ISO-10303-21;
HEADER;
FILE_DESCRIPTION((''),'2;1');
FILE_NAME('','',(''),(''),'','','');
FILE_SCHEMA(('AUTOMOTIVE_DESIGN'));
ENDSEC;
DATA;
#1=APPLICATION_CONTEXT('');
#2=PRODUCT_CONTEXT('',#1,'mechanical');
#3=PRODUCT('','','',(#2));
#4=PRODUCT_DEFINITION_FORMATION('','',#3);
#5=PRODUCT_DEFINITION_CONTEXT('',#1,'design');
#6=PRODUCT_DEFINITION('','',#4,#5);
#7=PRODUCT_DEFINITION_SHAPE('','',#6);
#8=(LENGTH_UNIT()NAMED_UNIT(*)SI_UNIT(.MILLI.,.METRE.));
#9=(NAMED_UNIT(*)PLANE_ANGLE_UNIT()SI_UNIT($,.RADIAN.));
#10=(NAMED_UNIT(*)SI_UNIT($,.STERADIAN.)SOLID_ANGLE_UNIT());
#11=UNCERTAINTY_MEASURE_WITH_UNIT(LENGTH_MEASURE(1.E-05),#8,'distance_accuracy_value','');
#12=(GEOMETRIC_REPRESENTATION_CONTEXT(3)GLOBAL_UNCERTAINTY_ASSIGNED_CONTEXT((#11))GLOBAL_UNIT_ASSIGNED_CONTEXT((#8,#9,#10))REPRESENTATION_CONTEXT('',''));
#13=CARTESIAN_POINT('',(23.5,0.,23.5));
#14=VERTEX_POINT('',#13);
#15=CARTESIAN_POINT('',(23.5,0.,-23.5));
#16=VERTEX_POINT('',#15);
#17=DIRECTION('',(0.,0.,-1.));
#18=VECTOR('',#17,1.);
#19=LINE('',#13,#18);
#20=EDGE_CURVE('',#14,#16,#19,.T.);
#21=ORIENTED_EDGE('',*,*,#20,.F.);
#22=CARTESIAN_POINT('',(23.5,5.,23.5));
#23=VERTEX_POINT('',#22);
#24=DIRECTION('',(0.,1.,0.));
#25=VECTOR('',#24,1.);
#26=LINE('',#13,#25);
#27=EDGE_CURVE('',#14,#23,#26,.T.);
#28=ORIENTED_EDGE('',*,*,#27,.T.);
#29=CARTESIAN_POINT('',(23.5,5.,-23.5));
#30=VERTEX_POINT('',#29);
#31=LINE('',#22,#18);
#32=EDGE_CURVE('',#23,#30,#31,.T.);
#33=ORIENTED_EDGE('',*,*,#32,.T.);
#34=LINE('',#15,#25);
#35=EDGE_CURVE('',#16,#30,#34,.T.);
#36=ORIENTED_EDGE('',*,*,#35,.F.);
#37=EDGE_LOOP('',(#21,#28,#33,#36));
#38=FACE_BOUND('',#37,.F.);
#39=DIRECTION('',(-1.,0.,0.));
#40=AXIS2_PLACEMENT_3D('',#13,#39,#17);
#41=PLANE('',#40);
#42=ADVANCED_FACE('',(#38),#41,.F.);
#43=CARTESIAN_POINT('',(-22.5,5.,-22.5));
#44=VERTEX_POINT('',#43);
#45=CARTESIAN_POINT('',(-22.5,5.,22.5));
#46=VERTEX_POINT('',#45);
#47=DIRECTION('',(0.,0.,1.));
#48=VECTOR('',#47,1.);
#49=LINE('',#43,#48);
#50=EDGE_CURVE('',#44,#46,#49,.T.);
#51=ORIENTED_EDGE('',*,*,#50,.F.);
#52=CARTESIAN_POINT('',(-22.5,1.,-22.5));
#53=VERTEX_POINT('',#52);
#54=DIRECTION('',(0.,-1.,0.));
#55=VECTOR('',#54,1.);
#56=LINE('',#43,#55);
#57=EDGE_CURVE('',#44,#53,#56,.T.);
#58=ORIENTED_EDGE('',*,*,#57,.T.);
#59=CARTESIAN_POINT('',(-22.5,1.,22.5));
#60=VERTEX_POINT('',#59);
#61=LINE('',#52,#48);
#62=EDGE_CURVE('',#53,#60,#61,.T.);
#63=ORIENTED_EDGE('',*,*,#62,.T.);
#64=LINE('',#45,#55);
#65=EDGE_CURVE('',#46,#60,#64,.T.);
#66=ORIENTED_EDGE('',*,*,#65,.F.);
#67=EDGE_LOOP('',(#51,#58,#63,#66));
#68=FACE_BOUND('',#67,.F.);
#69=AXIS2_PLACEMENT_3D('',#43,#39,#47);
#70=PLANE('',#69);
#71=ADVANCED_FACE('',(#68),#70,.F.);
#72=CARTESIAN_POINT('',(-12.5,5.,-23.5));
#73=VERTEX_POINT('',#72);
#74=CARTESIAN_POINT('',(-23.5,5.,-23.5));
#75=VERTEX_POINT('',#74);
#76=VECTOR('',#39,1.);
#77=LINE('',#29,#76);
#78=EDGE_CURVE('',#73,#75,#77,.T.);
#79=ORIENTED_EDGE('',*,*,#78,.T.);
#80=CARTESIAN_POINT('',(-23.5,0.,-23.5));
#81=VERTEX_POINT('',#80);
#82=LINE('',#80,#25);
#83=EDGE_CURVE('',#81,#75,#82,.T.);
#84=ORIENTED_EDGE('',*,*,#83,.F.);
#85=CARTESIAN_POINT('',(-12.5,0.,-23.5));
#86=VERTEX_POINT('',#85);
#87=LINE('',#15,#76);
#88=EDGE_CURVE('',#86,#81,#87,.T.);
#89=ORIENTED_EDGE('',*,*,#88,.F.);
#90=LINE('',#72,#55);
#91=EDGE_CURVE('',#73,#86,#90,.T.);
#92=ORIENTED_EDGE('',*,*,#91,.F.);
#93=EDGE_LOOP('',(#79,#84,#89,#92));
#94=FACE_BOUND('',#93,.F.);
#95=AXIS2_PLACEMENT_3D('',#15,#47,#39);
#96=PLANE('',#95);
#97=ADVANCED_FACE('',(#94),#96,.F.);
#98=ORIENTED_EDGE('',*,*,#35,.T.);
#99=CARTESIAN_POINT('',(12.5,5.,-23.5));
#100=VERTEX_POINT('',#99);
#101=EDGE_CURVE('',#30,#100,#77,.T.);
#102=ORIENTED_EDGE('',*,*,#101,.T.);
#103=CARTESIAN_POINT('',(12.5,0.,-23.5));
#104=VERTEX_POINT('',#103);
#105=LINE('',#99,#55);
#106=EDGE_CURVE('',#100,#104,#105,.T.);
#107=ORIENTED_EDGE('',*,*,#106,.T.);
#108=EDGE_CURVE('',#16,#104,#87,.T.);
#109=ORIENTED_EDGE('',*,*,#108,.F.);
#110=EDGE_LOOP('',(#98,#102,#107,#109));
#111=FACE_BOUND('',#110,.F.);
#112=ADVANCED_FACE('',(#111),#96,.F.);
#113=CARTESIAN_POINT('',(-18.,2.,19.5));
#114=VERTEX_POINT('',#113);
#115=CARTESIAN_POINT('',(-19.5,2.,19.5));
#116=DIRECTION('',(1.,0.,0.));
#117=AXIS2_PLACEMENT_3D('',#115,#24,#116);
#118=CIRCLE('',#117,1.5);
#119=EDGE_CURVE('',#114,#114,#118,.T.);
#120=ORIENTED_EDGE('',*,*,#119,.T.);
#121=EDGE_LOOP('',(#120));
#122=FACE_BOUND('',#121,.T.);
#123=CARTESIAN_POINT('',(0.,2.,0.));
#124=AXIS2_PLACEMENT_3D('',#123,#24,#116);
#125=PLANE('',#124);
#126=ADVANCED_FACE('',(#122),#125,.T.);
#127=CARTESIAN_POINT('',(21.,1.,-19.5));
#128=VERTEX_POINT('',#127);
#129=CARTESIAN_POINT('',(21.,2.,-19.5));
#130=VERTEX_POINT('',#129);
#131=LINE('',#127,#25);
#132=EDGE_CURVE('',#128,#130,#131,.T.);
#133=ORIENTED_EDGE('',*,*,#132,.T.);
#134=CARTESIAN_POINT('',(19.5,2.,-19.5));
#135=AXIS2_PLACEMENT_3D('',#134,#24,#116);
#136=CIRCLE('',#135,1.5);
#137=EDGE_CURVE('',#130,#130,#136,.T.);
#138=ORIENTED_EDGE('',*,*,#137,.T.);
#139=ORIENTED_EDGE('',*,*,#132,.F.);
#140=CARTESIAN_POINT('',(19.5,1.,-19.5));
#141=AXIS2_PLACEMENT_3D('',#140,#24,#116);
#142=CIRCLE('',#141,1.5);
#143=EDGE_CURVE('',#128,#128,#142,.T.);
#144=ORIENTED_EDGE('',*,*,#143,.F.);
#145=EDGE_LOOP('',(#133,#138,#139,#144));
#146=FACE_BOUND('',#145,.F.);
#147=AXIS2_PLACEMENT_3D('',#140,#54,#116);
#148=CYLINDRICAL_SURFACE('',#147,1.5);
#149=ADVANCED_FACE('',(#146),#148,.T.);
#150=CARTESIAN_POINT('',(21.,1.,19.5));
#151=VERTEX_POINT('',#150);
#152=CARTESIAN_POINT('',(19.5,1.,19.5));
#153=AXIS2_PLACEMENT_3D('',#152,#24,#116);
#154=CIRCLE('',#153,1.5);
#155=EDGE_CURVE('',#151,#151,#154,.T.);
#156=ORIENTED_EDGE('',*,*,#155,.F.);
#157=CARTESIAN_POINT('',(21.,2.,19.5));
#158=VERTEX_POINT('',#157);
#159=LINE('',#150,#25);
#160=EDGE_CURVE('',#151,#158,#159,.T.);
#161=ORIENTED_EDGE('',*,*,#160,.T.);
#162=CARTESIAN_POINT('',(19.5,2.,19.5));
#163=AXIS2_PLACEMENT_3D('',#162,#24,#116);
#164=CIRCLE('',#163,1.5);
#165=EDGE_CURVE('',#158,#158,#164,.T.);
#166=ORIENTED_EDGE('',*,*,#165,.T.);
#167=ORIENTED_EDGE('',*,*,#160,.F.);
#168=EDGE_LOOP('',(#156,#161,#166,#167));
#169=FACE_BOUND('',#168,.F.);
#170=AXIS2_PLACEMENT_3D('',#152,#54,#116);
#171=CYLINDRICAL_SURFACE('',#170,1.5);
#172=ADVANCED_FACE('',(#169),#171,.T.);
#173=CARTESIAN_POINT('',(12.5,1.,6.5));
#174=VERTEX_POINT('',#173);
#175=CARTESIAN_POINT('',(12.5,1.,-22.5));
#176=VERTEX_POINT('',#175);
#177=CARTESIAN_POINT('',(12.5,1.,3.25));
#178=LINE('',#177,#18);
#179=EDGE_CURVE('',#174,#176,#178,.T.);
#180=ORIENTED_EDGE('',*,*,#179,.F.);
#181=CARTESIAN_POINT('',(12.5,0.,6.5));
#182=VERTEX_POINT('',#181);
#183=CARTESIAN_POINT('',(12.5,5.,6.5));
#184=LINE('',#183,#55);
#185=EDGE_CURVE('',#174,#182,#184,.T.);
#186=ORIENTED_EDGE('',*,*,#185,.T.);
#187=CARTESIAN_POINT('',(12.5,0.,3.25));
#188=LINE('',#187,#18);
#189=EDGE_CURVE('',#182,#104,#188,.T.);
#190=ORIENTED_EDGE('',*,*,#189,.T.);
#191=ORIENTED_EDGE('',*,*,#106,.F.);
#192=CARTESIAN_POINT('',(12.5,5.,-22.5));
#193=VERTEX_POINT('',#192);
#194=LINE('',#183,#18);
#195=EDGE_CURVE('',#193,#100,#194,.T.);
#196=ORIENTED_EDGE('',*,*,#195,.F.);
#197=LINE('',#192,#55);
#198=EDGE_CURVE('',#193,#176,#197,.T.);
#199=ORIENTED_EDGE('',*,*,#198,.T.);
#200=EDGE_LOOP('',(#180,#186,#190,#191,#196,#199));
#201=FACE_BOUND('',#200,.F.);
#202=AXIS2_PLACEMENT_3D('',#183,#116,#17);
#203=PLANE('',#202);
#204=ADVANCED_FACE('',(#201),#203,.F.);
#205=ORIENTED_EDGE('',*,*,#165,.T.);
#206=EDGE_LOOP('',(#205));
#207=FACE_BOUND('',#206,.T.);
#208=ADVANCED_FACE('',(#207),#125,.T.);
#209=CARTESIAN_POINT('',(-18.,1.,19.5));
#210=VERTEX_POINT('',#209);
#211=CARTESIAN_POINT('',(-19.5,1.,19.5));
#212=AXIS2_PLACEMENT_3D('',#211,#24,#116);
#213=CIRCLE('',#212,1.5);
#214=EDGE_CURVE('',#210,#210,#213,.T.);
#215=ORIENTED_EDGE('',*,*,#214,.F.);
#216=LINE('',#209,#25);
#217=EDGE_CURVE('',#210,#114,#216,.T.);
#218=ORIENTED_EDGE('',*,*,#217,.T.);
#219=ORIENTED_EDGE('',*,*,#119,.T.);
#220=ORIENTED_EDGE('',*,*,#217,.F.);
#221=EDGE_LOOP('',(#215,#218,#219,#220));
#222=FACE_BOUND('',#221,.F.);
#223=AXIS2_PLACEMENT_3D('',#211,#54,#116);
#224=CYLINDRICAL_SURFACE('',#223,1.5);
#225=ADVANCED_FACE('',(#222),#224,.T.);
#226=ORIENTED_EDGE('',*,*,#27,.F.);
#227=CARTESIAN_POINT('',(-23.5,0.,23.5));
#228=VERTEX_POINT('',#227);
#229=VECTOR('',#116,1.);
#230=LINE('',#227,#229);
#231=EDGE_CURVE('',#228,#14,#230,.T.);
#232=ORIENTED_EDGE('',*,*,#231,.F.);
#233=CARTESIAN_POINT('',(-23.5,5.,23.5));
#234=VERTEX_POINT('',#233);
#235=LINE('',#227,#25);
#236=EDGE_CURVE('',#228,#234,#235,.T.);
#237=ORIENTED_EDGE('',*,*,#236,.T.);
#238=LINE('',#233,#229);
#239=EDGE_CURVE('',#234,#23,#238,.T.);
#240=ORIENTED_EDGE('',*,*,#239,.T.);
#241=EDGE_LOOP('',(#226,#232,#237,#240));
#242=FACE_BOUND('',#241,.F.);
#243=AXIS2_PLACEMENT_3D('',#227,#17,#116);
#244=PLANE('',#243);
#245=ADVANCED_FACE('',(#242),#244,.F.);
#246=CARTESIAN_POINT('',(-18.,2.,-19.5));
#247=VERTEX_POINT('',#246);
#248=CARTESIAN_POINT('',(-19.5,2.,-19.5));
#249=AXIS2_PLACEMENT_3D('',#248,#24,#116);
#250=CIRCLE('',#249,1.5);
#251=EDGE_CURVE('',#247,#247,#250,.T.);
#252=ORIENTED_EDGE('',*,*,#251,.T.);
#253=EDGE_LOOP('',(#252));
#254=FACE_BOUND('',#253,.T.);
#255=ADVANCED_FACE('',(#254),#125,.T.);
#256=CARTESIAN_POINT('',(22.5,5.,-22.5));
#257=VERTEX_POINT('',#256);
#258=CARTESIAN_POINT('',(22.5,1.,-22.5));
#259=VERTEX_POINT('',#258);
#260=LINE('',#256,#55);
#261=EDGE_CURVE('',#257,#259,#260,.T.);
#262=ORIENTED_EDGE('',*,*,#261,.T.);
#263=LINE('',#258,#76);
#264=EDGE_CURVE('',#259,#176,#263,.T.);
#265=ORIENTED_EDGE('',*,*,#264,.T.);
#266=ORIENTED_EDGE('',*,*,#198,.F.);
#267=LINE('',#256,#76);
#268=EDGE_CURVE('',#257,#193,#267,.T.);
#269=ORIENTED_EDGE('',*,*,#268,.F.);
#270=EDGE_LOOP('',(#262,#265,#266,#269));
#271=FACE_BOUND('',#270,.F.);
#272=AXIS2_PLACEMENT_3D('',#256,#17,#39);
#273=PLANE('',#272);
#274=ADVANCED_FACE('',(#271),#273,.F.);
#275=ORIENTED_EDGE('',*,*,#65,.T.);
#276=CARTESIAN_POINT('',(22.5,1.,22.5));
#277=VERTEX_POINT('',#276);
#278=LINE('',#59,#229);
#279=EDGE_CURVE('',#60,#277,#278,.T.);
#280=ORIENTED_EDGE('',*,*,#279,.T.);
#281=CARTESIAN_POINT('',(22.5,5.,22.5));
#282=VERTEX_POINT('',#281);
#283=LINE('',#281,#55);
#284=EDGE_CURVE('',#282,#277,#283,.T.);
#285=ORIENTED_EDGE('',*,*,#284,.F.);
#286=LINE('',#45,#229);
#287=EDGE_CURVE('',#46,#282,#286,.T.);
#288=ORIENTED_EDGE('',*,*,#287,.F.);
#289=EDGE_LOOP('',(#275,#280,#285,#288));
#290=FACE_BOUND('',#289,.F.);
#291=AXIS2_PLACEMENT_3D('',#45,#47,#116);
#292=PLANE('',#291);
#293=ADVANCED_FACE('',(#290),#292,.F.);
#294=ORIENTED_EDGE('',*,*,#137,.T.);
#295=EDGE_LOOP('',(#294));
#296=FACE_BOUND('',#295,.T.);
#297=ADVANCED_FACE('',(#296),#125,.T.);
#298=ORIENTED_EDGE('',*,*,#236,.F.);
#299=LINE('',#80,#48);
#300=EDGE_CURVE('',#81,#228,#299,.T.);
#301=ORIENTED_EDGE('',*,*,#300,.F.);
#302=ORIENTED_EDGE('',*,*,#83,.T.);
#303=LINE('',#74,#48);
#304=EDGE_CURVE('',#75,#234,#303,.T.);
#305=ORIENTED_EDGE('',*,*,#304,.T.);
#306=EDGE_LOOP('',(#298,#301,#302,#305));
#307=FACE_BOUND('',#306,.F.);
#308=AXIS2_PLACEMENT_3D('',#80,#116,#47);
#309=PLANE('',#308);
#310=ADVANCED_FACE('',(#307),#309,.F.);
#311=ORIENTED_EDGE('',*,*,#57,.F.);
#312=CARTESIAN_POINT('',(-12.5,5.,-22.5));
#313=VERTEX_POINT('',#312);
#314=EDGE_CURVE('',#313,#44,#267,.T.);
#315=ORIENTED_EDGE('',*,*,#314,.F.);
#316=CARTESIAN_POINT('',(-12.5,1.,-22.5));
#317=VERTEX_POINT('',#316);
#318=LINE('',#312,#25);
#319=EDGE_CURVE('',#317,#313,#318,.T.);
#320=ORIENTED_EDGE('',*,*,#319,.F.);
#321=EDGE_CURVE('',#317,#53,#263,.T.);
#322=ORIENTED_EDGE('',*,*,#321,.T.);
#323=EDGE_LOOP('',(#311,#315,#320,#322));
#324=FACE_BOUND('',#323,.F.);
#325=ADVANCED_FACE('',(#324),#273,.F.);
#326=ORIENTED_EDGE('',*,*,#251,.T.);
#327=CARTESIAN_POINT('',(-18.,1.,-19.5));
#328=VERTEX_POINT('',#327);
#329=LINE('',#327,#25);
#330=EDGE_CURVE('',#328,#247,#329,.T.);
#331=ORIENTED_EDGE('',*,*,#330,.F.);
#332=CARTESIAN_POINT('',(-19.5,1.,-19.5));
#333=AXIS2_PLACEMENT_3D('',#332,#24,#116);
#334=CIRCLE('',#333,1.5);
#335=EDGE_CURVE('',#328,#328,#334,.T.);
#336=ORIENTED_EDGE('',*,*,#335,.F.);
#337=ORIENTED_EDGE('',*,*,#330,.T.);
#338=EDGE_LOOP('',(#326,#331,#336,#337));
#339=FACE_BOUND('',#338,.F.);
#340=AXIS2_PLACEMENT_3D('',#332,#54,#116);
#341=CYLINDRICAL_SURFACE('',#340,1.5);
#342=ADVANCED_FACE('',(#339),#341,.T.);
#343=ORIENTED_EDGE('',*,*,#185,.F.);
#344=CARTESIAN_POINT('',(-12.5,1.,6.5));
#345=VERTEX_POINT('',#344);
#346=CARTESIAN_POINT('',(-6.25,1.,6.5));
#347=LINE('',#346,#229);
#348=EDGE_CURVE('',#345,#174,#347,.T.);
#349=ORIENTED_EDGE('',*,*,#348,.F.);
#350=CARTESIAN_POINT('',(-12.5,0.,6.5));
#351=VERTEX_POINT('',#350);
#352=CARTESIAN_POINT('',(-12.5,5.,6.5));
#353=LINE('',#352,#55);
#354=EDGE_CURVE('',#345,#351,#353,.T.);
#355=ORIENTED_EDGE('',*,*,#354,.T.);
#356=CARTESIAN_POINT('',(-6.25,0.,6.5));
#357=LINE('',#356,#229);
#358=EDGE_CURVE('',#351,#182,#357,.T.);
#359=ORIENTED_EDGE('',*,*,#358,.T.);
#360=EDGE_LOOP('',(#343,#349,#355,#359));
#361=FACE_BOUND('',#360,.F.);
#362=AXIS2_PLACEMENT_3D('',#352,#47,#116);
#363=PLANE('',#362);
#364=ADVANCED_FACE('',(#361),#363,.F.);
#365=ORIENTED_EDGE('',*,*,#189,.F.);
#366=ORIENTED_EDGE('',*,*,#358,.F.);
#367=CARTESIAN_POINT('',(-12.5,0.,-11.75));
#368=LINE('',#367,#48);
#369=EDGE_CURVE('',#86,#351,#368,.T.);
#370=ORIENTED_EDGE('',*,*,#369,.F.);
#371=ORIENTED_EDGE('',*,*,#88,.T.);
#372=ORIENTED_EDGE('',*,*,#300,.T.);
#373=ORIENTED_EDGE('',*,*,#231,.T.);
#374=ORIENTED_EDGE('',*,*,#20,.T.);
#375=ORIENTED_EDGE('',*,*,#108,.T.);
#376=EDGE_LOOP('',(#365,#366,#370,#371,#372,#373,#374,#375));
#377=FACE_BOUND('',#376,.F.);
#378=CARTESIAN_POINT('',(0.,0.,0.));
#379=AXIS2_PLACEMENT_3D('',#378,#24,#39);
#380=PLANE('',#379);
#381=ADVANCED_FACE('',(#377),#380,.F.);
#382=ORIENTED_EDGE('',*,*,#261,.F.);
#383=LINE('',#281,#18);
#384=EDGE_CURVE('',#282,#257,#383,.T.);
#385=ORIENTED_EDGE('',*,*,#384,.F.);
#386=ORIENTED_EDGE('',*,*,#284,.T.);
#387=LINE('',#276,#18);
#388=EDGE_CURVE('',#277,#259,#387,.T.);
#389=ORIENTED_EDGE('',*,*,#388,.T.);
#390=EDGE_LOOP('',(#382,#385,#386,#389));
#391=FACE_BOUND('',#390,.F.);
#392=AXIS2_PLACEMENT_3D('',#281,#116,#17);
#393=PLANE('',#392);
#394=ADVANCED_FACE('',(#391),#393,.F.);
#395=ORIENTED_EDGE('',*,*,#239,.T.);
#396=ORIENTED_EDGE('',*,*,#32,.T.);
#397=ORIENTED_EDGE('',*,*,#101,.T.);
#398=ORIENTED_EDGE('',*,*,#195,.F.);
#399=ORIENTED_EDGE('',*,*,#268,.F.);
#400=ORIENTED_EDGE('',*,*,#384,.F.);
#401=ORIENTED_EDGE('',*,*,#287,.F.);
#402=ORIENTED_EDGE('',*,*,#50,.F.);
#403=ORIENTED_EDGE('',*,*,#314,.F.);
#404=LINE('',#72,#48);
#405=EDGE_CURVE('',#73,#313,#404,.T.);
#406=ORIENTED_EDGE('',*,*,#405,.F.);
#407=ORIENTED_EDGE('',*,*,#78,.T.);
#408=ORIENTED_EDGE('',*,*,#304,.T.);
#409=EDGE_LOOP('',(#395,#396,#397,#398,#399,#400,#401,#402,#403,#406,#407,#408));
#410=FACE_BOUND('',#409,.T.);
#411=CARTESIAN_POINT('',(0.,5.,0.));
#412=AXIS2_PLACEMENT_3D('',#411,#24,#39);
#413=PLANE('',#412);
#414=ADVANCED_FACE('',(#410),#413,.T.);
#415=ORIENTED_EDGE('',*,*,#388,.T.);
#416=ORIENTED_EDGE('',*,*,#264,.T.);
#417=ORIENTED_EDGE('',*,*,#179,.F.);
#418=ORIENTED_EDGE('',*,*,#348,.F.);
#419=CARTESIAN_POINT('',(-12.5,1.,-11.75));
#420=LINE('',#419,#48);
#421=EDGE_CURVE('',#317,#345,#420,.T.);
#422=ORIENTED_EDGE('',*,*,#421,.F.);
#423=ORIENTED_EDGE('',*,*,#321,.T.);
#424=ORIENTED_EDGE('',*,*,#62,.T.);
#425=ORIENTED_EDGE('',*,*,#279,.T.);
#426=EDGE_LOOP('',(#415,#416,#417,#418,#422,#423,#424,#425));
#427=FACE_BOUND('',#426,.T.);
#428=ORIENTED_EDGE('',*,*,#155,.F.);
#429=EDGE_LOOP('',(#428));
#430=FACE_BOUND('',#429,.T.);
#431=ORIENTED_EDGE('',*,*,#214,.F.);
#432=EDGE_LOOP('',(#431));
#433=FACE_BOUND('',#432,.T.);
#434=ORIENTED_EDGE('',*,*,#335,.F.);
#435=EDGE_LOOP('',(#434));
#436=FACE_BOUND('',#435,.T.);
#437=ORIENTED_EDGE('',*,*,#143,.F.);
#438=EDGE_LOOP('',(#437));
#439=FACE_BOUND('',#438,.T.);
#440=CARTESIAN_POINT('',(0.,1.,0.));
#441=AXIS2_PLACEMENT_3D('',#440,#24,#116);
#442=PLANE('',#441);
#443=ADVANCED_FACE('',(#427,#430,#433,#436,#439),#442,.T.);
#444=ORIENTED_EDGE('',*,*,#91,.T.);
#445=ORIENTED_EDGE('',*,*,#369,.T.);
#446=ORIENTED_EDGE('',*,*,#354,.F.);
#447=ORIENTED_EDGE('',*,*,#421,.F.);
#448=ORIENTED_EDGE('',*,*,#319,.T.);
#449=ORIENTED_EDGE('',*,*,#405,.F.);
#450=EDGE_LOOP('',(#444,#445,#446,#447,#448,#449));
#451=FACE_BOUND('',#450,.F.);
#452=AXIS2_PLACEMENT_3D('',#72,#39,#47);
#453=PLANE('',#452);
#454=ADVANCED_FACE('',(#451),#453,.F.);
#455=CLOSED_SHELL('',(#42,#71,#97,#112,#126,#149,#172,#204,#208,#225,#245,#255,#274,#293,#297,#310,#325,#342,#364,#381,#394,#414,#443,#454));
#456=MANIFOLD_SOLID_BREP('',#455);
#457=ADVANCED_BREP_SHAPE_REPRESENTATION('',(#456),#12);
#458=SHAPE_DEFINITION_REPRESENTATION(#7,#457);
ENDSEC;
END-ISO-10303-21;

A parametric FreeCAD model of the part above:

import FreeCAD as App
import Part
import Sketcher
from FreeCAD import Vector


def add_polygon(sketch, points):
    """Adds a closed chain of lines whose ends are joined by coincident constraints."""
    first, n = sketch.GeometryCount, len(points)
    for a, b in zip(points, points[1:] + points[:1]):
        sketch.addGeometry(Part.LineSegment(App.Vector(*a, 0), App.Vector(*b, 0)), False)
    for i in range(n):
        sketch.addConstraint(Sketcher.Constraint("Coincident", first + i, 2, first + (i + 1) % n, 1))

doc = App.newDocument("Part")
body = doc.addObject("PartDesign::Body", "Body")

sketch1 = body.newObject("Sketcher::SketchObject", "Sketch")
sketch1.AttachmentSupport = (doc.getObject("XZ_Plane"), [""])
sketch1.MapMode = "FlatFace"
add_polygon(sketch1, [(-24, -24), (-24, 24), (24, 24), (24, -24)])
sketch1.addConstraint(Sketcher.Constraint("Vertical", 0))
sketch1.addConstraint(Sketcher.Constraint("Horizontal", 1))
sketch1.addConstraint(Sketcher.Constraint("Vertical", 2))
sketch1.addConstraint(Sketcher.Constraint("Horizontal", 3))
sketch1.addConstraint(Sketcher.Constraint("Symmetric", 0, 2, 2, 2, -1, 1))
sketch1.addConstraint(Sketcher.Constraint("Equal", 3, 0))
sketch1.addConstraint(Sketcher.Constraint("DistanceX", 1, 1, 1, 2, 47.0))
pad1 = body.newObject("PartDesign::Pad", "Pad")
pad1.Profile = sketch1
pad1.Length = 5
pad1.Reversed = True

sketch2 = body.newObject("Sketcher::SketchObject", "Sketch001")
sketch2.AttachmentSupport = (doc.getObject("XZ_Plane"), [""])
sketch2.MapMode = "FlatFace"
sketch2.AttachmentOffset = App.Placement(Vector(0, 0, -5), App.Rotation())
add_polygon(sketch2, [(-22, -22), (-22, 22), (22, 22), (22, -22)])
sketch2.addConstraint(Sketcher.Constraint("Vertical", 0))
sketch2.addConstraint(Sketcher.Constraint("Horizontal", 1))
sketch2.addConstraint(Sketcher.Constraint("Vertical", 2))
sketch2.addConstraint(Sketcher.Constraint("Horizontal", 3))
sketch2.addConstraint(Sketcher.Constraint("Symmetric", 0, 2, 2, 2, -1, 1))
sketch2.addConstraint(Sketcher.Constraint("Equal", 3, 0))
sketch2.addConstraint(Sketcher.Constraint("DistanceX", 1, 1, 1, 2, 45.0))
pocket1 = body.newObject("PartDesign::Pocket", "Pocket")
pocket1.Profile = sketch2
pocket1.Length = 4
pocket1.Reversed = True

sketch3 = body.newObject("Sketcher::SketchObject", "Sketch002")
sketch3.AttachmentSupport = (doc.getObject("XZ_Plane"), [""])
sketch3.MapMode = "FlatFace"
sketch3.AttachmentOffset = App.Placement(Vector(0, 0, -5), App.Rotation())
add_polygon(sketch3, [(12, 6), (12, -24), (-12, -24), (-12, 6)])
sketch3.addConstraint(Sketcher.Constraint("Vertical", 0))
sketch3.addConstraint(Sketcher.Constraint("Horizontal", 1))
sketch3.addConstraint(Sketcher.Constraint("Vertical", 2))
sketch3.addConstraint(Sketcher.Constraint("Horizontal", 3))
sketch3.addConstraint(Sketcher.Constraint("DistanceX", 1, 2, 1, 1, 25.0))
sketch3.addConstraint(Sketcher.Constraint("DistanceY", 0, 2, 0, 1, 30.0))
sketch3.addConstraint(Sketcher.Constraint("DistanceX", -1, 1, 0, 2, 12.5))
sketch3.addConstraint(Sketcher.Constraint("DistanceY", 0, 2, -1, 1, 23.5))
pocket2 = body.newObject("PartDesign::Pocket", "Pocket001")
pocket2.Profile = sketch3
pocket2.Length = 10
pocket2.Reversed = True

sketch4 = body.newObject("Sketcher::SketchObject", "Sketch003")
sketch4.AttachmentSupport = (doc.getObject("XZ_Plane"), [""])
sketch4.MapMode = "FlatFace"
sketch4.AttachmentOffset = App.Placement(Vector(0, 0, -1), App.Rotation())
sketch4.addGeometry(Part.Circle(Vector(-19.5, 19.5, 0), Vector(0, 0, 1), 1.5), False)
sketch4.addGeometry(Part.Circle(Vector(-19.5, -19.5, 0), Vector(0, 0, 1), 1.5), False)
sketch4.addGeometry(Part.Circle(Vector(19.5, 19.5, 0), Vector(0, 0, 1), 1.5), False)
sketch4.addGeometry(Part.Circle(Vector(19.5, -19.5, 0), Vector(0, 0, 1), 1.5), False)
sketch4.addConstraint(Sketcher.Constraint("Equal", 0, 1))
sketch4.addConstraint(Sketcher.Constraint("Equal", 1, 2))
sketch4.addConstraint(Sketcher.Constraint("Equal", 2, 3))
sketch4.addConstraint(Sketcher.Constraint("Symmetric", 1, 3, 2, 3, -1, 1))
sketch4.addConstraint(Sketcher.Constraint("Symmetric", 0, 3, 3, 3, -1, 1))
sketch4.addConstraint(Sketcher.Constraint("Symmetric", 0, 3, 2, 3, -2))
sketch4.addConstraint(Sketcher.Constraint("Diameter", 0, 3.0))
sketch4.addConstraint(Sketcher.Constraint("DistanceY", 1, 3, 0, 3, 39.0))
sketch4.addConstraint(Sketcher.Constraint("DistanceX", 0, 3, 2, 3, 39.0))
pad2 = body.newObject("PartDesign::Pad", "Pad001")
pad2.Profile = sketch4
pad2.Length = 1
pad2.Reversed = True

doc.recompute()
